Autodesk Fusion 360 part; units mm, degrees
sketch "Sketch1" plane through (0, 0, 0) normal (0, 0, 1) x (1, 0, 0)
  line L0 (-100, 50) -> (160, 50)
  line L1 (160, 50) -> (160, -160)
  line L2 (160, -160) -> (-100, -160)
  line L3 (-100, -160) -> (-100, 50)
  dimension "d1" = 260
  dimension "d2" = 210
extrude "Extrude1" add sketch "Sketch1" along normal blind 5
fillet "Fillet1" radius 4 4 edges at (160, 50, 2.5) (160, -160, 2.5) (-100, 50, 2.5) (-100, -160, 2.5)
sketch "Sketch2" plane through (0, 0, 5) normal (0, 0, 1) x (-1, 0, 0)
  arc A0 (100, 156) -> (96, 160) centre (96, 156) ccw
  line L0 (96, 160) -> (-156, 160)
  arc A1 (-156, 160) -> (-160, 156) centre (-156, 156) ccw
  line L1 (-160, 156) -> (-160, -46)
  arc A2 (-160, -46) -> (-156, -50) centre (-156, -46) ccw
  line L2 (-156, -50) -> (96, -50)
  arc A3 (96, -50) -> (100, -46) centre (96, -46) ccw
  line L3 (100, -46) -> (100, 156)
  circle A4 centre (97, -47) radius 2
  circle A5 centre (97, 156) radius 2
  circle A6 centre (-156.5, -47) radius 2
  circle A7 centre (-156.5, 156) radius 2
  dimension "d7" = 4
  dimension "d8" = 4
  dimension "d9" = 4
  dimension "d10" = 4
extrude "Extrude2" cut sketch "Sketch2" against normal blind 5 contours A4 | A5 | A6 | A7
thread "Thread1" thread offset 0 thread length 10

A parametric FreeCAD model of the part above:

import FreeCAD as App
import Part
import Sketcher

V = App.Vector
Q = App.Units.Quantity


def edges_at(feature, points):
    """Names of the edges that pass closest to the given points."""
    edges = feature.Shape.Edges
    near = lambda p: min(range(len(edges)), key=lambda i: edges[i].distToShape(Part.Vertex(*p))[0])
    return sorted({f"Edge{near(p) + 1}" for p in points})

doc = App.newDocument("Part")
body = doc.addObject("PartDesign::Body", "Body")

sketch1 = body.newObject("Sketcher::SketchObject", "Sketch")
sketch1.AttachmentSupport = (doc.getObject("XY_Plane"), [""])
sketch1.MapMode = "FlatFace"
sketch1.addGeometry([
    Part.LineSegment(V(160, 50, 0), V(-100, 50, 0)),
    Part.LineSegment(V(-100, 50, 0), V(-100, -160, 0)),
    Part.LineSegment(V(-100, -160, 0), V(160, -160, 0)),
    Part.LineSegment(V(160, -160, 0), V(160, 50, 0)),
], False)
sketch1.addConstraint([
    Sketcher.Constraint("Coincident", 0, 2, 1, 1),
    Sketcher.Constraint("Coincident", 1, 2, 2, 1),
    Sketcher.Constraint("Coincident", 2, 2, 3, 1),
    Sketcher.Constraint("Coincident", 3, 2, 0, 1),
    Sketcher.Constraint("Horizontal", 0),
    Sketcher.Constraint("Vertical", 1),
    Sketcher.Constraint("Horizontal", 2),
    Sketcher.Constraint("Vertical", 3),
    Sketcher.Constraint("DistanceX", 0, 2, 0, 1, Q("260 mm")),
    Sketcher.Constraint("DistanceY", 1, 2, 1, 1, Q("210 mm")),
    Sketcher.Constraint("DistanceX", 0, 2, -1, 1, Q("100 mm")),
    Sketcher.Constraint("DistanceY", -1, 1, 0, 2, Q("50 mm")),
])
pad1 = body.newObject("PartDesign::Pad", "Pad")
pad1.Profile = sketch1
pad1.Length = 5
doc.recompute()

fillet = body.newObject("PartDesign::Fillet", "Fillet")
fillet.Base = (pad1, edges_at(pad1, [
    (160, 50, 2.5),
    (160, -160, 2.5),
    (-100, 50, 2.5),
    (-100, -160, 2.5),
]))
fillet.Radius = 4

sketch2 = body.newObject("Sketcher::SketchObject", "Sketch001")
sketch2.AttachmentSupport = (doc.getObject("XY_Plane"), [""])
sketch2.MapMode = "FlatFace"
sketch2.AttachmentOffset = App.Placement(V(0, 0, 5), App.Rotation())
sketch2.addGeometry([
    Part.Circle(V(-97, 47, 0), V(0, 0, 1), 2),
    Part.Circle(V(-97, -156, 0), V(0, 0, 1), 2),
    Part.Circle(V(156.5, 47, 0), V(0, 0, 1), 2),
    Part.Circle(V(156.5, -156, 0), V(0, 0, 1), 2),
], False)
sketch2.addConstraint([
    Sketcher.Constraint("Equal", 0, 1),
    Sketcher.Constraint("Equal", 1, 2),
    Sketcher.Constraint("Equal", 2, 3),
    Sketcher.Constraint("Horizontal", 0, 3, 2, 3),
    Sketcher.Constraint("Horizontal", 1, 3, 3, 3),
    Sketcher.Constraint("Vertical", 0, 3, 1, 3),
    Sketcher.Constraint("Vertical", 2, 3, 3, 3),
    Sketcher.Constraint("Diameter", 0, Q("4 mm")),
    Sketcher.Constraint("DistanceX", 0, 3, -1, 1, Q("97 mm")),
    Sketcher.Constraint("DistanceY", -1, 1, 0, 3, Q("47 mm")),
    Sketcher.Constraint("DistanceY", 1, 3, -1, 1, Q("156 mm")),
    Sketcher.Constraint("DistanceX", -1, 1, 2, 3, Q("156.5 mm")),
])
pocket1 = body.newObject("PartDesign::Pocket", "Pocket")
pocket1.Profile = sketch2
pocket1.Length = 5

doc.recompute()
